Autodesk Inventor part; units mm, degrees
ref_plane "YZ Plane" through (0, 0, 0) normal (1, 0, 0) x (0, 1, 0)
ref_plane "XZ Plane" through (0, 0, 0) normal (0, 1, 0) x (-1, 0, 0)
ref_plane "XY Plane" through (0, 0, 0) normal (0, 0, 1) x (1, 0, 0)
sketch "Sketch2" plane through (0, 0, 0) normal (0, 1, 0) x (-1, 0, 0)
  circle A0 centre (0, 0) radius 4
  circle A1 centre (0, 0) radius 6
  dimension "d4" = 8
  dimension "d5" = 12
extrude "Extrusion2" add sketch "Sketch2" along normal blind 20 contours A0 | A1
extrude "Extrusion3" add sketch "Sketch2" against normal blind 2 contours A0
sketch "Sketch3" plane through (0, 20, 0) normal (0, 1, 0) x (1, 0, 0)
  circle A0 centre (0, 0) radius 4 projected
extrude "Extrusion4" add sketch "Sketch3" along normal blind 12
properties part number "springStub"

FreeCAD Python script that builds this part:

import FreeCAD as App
import Part
import Sketcher

V = App.Vector

doc = App.newDocument("Part")
body = doc.addObject("PartDesign::Body", "Body")

sketch1 = body.newObject("Sketcher::SketchObject", "Sketch")
sketch1.AttachmentSupport = (doc.getObject("XZ_Plane"), [""])
sketch1.MapMode = "FlatFace"
sketch1.addGeometry(Part.Circle(V(0, 0, 0), V(0, 0, 1), 6), False)
sketch1.addConstraint(Sketcher.Constraint("Coincident", 0, 3, -1, 1))
sketch1.addConstraint(Sketcher.Constraint("Diameter", 0, 12.0))
pad1 = body.newObject("PartDesign::Pad", "Pad")
pad1.Profile = sketch1
pad1.Length = 20
pad1.Reversed = True

sketch2 = body.newObject("Sketcher::SketchObject", "Sketch001")
sketch2.AttachmentSupport = (doc.getObject("XZ_Plane"), [""])
sketch2.MapMode = "FlatFace"
sketch2.addGeometry(Part.Circle(V(0, 0, 0), V(0, 0, 1), 4), False)
sketch2.addConstraint(Sketcher.Constraint("Coincident", 0, 3, -1, 1))
sketch2.addConstraint(Sketcher.Constraint("Diameter", 0, 8.0))
pad2 = body.newObject("PartDesign::Pad", "Pad001")
pad2.Profile = sketch2
pad2.Length = 2

sketch3 = body.newObject("Sketcher::SketchObject", "Sketch002")
sketch3.AttachmentSupport = (doc.getObject("XZ_Plane"), [""])
sketch3.MapMode = "FlatFace"
sketch3.AttachmentOffset = App.Placement(V(0, 0, -20), App.Rotation())
sketch3.addGeometry(Part.Circle(V(0, 0, 0), V(0, 0, 1), 4), False)
sketch3.addConstraint(Sketcher.Constraint("Coincident", 0, 3, -1, 1))
sketch3.addConstraint(Sketcher.Constraint("Diameter", 0, 8.0))
pad3 = body.newObject("PartDesign::Pad", "Pad002")
pad3.Profile = sketch3
pad3.Length = 12
pad3.Reversed = True

doc.recompute()
